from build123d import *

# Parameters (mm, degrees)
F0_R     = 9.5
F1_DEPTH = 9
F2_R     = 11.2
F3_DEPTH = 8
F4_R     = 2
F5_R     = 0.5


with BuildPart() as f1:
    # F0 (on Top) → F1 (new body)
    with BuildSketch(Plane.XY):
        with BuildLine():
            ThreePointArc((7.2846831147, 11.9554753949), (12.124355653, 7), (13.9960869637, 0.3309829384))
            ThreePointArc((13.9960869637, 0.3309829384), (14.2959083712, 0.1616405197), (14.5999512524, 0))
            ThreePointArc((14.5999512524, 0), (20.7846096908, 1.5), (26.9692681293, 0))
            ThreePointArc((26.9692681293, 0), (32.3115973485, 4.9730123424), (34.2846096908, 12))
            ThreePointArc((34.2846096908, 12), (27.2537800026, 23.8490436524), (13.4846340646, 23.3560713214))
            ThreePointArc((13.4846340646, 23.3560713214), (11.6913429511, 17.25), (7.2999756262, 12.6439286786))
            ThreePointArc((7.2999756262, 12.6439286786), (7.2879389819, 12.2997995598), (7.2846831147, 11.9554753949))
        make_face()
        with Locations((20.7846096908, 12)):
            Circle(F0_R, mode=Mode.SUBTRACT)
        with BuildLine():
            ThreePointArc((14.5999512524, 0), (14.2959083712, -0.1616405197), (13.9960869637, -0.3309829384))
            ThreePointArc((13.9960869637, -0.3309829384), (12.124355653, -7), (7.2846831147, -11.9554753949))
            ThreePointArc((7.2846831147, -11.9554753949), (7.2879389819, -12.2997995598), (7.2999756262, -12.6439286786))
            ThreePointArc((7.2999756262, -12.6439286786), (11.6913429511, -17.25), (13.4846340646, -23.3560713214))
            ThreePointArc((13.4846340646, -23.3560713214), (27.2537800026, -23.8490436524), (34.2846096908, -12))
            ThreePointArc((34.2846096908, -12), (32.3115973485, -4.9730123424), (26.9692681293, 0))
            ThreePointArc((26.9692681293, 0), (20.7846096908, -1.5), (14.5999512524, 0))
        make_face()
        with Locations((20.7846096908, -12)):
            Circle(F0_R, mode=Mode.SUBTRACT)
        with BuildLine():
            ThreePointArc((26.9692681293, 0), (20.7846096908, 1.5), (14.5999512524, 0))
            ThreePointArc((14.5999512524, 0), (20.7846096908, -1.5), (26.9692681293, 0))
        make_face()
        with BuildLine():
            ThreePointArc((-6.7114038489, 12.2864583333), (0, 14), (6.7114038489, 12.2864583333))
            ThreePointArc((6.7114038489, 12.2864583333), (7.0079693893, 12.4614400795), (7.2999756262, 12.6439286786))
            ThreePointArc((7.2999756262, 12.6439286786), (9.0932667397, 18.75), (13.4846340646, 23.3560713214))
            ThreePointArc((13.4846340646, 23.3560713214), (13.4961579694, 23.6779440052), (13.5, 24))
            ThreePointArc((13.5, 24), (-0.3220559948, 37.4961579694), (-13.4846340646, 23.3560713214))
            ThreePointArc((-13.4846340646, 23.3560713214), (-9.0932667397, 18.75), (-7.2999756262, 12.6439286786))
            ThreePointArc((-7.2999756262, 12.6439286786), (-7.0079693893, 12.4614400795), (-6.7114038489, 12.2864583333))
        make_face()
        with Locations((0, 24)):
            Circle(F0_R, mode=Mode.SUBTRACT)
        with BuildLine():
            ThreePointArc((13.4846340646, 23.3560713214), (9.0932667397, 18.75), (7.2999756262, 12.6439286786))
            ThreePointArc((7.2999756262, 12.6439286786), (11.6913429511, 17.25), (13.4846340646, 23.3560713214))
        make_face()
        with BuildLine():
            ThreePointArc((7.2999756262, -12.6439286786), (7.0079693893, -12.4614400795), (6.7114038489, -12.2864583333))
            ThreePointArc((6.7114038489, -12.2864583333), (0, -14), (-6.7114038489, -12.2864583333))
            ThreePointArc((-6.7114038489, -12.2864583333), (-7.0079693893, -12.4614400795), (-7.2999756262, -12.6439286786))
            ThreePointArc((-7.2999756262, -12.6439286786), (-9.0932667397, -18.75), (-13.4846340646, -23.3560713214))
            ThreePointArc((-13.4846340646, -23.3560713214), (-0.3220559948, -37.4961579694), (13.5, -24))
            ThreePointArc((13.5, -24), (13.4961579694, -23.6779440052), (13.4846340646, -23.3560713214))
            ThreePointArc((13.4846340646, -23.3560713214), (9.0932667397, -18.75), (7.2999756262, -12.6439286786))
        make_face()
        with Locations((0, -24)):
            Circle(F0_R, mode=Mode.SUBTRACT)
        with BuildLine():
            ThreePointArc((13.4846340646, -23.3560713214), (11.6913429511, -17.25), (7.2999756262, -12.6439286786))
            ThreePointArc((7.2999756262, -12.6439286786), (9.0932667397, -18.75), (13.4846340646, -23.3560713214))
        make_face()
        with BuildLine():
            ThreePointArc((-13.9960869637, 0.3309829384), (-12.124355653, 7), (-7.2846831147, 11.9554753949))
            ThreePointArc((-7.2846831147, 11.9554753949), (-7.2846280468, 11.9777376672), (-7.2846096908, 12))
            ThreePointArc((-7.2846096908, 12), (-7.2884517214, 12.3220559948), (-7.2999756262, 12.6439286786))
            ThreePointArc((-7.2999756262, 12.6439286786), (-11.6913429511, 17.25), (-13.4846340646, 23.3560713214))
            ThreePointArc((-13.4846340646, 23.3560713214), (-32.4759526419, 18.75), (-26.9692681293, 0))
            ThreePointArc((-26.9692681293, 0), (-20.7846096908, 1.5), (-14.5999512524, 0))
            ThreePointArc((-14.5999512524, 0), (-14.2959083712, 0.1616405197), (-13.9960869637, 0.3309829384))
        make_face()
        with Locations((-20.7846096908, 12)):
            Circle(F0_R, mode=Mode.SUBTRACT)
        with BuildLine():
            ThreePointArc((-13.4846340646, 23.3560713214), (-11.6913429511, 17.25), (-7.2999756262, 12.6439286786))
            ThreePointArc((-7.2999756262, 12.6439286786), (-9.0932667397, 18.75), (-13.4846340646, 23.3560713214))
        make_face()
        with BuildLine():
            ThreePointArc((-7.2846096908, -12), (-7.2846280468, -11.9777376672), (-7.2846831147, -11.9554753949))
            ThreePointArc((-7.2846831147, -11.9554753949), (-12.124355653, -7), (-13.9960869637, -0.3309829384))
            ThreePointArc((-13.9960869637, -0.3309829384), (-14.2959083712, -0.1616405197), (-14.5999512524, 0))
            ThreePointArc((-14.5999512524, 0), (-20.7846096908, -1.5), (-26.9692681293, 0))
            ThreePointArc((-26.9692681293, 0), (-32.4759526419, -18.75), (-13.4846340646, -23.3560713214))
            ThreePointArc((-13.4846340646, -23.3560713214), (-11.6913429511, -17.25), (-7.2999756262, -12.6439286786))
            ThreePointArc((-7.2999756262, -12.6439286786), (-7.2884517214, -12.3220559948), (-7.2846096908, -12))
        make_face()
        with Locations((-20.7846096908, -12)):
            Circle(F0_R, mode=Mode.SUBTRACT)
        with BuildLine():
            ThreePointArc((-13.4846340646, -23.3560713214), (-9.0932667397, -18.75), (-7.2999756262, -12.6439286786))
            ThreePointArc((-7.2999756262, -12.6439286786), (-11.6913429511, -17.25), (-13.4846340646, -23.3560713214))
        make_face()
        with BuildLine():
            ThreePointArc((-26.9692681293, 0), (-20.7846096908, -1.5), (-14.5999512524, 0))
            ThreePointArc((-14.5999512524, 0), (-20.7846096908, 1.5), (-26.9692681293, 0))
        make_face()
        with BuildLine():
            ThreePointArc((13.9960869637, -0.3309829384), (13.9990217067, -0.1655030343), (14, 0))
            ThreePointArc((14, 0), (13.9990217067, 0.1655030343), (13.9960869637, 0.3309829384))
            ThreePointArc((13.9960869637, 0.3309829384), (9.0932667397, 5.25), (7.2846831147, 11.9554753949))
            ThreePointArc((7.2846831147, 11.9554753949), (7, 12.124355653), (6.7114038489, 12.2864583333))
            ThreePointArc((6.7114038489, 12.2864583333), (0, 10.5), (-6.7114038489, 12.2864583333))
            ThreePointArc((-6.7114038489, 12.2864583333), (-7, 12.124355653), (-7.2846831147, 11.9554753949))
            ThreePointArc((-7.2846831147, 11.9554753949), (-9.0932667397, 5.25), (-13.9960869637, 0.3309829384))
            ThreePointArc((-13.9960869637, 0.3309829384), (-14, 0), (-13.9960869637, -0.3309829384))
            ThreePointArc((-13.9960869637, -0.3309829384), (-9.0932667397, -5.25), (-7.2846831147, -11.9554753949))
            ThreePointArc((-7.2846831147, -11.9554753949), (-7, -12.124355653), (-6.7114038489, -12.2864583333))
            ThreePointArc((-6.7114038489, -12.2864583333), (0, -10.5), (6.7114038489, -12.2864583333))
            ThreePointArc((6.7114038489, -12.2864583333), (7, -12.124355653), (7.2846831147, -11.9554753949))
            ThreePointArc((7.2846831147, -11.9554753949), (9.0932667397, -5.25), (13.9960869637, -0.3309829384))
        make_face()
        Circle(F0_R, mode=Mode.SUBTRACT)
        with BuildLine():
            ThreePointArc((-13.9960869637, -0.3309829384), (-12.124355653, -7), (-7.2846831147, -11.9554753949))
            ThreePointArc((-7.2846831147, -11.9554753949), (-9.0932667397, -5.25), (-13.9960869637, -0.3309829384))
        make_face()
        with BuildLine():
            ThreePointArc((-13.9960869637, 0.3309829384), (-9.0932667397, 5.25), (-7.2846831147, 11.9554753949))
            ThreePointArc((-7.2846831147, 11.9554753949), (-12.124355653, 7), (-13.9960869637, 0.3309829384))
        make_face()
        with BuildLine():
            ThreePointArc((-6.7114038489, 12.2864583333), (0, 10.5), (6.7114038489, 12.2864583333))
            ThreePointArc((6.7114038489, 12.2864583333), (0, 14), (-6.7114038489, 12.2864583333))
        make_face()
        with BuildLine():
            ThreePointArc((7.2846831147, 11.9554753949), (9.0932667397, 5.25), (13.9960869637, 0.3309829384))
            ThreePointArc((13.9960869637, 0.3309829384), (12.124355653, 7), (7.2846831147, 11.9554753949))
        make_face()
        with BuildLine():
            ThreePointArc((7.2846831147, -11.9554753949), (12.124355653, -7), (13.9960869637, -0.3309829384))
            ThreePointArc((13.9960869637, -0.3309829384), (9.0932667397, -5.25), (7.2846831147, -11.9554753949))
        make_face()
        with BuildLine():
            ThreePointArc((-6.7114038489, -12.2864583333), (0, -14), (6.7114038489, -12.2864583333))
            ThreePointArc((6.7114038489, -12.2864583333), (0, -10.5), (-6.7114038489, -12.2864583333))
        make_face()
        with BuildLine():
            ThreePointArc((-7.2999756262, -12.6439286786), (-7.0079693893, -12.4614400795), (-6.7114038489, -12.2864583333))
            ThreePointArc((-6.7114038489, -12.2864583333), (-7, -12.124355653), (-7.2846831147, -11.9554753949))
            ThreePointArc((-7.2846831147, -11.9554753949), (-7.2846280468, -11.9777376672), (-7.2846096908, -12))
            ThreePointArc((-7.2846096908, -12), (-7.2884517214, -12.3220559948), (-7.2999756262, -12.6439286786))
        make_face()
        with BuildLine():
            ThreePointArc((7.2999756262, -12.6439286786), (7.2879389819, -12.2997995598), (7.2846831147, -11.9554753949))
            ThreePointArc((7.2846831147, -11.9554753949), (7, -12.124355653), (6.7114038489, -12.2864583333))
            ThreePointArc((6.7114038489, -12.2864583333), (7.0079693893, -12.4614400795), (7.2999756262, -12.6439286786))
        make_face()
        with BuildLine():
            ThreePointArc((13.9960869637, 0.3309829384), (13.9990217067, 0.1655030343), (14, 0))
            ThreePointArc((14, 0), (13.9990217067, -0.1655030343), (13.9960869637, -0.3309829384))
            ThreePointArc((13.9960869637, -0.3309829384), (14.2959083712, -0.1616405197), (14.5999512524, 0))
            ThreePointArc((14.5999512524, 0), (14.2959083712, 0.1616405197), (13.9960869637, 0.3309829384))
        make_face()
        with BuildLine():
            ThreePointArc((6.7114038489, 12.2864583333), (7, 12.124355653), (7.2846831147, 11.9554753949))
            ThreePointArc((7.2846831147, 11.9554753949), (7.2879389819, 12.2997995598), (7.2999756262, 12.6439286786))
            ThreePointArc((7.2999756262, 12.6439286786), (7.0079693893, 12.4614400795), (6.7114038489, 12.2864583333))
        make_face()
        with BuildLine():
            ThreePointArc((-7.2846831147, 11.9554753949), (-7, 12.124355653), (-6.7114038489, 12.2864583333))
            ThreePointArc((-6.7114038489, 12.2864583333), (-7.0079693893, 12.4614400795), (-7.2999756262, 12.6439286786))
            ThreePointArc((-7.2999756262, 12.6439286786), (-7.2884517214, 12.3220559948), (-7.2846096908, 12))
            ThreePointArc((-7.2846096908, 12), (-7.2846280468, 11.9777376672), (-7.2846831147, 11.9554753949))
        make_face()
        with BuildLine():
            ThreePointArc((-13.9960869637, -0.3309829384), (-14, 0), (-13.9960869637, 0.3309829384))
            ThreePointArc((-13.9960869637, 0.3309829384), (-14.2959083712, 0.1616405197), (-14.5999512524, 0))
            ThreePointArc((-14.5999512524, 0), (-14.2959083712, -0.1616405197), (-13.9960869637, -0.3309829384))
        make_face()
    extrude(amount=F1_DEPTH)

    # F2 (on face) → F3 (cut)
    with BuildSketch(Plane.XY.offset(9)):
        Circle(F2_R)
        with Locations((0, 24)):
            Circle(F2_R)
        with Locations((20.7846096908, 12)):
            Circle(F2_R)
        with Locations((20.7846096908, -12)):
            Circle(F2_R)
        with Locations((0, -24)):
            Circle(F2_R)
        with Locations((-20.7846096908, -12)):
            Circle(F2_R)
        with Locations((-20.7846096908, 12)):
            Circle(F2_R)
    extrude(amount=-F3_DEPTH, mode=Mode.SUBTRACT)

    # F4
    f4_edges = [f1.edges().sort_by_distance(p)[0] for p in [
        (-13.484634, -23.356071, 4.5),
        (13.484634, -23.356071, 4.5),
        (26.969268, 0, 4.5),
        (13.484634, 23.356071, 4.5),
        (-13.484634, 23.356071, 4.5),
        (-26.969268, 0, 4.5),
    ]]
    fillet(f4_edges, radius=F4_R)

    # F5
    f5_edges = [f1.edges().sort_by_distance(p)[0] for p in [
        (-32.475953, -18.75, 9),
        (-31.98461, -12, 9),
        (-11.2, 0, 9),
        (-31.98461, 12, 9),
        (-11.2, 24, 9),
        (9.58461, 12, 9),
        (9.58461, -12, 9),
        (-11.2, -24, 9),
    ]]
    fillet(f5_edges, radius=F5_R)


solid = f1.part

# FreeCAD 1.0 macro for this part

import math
import FreeCAD as App
import Part
import Sketcher

V = App.Vector


def edges_at(feature, points):
    """Names of the edges that pass closest to the given points."""
    edges = feature.Shape.Edges
    near = lambda p: min(range(len(edges)), key=lambda i: edges[i].distToShape(Part.Vertex(*p))[0])
    return sorted({f"Edge{near(p) + 1}" for p in points})

doc = App.newDocument("Part")
body = doc.addObject("PartDesign::Body", "Body")

# Sketch on XY plane
sketch1 = body.newObject("Sketcher::SketchObject", "Sketch")
sketch1.AttachmentSupport = (doc.getObject("XY_Plane"), [""])
sketch1.MapMode = "FlatFace"
sketch1.addGeometry(Part.ArcOfCircle(Part.Circle(V(-20.78461, 12, 0), V(0, 0, 1), 13.5), math.radians(57.266044), math.radians(242.733956)), False)
sketch1.addGeometry(Part.ArcOfCircle(Part.Circle(V(-20.78461, -12, 0), V(0, 0, 1), 13.5), math.radians(117.266044), math.radians(302.733956)), False)
sketch1.addGeometry(Part.ArcOfCircle(Part.Circle(V(0, -24, 0), V(0, 0, 1), 13.5), math.radians(177.266044), math.radians(360)), False)
sketch1.addGeometry(Part.ArcOfCircle(Part.Circle(V(0, -24, 0), V(0, 0, 1), 13.5), math.radians(0), math.radians(2.733956)), False)
sketch1.addGeometry(Part.ArcOfCircle(Part.Circle(V(20.78461, -12, 0), V(0, 0, 1), 13.5), math.radians(-122.733956), math.radians(0)), False)
sketch1.addGeometry(Part.ArcOfCircle(Part.Circle(V(20.78461, -12, 0), V(0, 0, 1), 13.5), math.radians(0), math.radians(62.733956)), False)
sketch1.addGeometry(Part.ArcOfCircle(Part.Circle(V(20.78461, 12, 0), V(0, 0, 1), 13.5), math.radians(-62.733956), math.radians(0)), False)
sketch1.addGeometry(Part.ArcOfCircle(Part.Circle(V(20.78461, 12, 0), V(0, 0, 1), 13.5), math.radians(0), math.radians(122.733956)), False)
sketch1.addGeometry(Part.ArcOfCircle(Part.Circle(V(0, 24, 0), V(0, 0, 1), 13.5), math.radians(-2.733956), math.radians(0)), False)
sketch1.addGeometry(Part.ArcOfCircle(Part.Circle(V(0, 24, 0), V(0, 0, 1), 13.5), math.radians(0), math.radians(182.733956)), False)
sketch1.addGeometry(Part.Circle(V(-20.78461, -12, 0), V(0, 0, 1), 9.5), False)
sketch1.addGeometry(Part.Circle(V(0, -24, 0), V(0, 0, 1), 9.5), False)
sketch1.addGeometry(Part.Circle(V(20.78461, -12, 0), V(0, 0, 1), 9.5), False)
sketch1.addGeometry(Part.Circle(V(-20.78461, 12, 0), V(0, 0, 1), 9.5), False)
sketch1.addGeometry(Part.Circle(V(0, 0, 0), V(0, 0, 1), 9.5), False)
sketch1.addGeometry(Part.Circle(V(20.78461, 12, 0), V(0, 0, 1), 9.5), False)
sketch1.addGeometry(Part.Circle(V(0, 24, 0), V(0, 0, 1), 9.5), False)
sketch1.addConstraint(Sketcher.Constraint("Coincident", 0, 2, 1, 1))
sketch1.addConstraint(Sketcher.Constraint("Coincident", 1, 2, 2, 1))
sketch1.addConstraint(Sketcher.Constraint("Tangent", 2, 2, 3, 1))
sketch1.addConstraint(Sketcher.Constraint("Coincident", 3, 2, 4, 1))
sketch1.addConstraint(Sketcher.Constraint("Tangent", 4, 2, 5, 1))
sketch1.addConstraint(Sketcher.Constraint("Coincident", 5, 2, 6, 1))
sketch1.addConstraint(Sketcher.Constraint("Tangent", 6, 2, 7, 1))
sketch1.addConstraint(Sketcher.Constraint("Coincident", 7, 2, 8, 1))
sketch1.addConstraint(Sketcher.Constraint("Tangent", 8, 2, 9, 1))
sketch1.addConstraint(Sketcher.Constraint("Coincident", 9, 2, 0, 1))
sketch1.addConstraint(Sketcher.Constraint("Coincident", 14, 3, -1, 1))
sketch1.addConstraint(Sketcher.Constraint("Coincident", 10, 3, 1, 3))
sketch1.addConstraint(Sketcher.Constraint("Coincident", 11, 3, 2, 3))
sketch1.addConstraint(Sketcher.Constraint("Coincident", 12, 3, 4, 3))
sketch1.addConstraint(Sketcher.Constraint("Coincident", 13, 3, 0, 3))
sketch1.addConstraint(Sketcher.Constraint("Coincident", 15, 3, 6, 3))
sketch1.addConstraint(Sketcher.Constraint("Coincident", 16, 3, 8, 3))
sketch1.addConstraint(Sketcher.Constraint("Equal", 0, 1))
sketch1.addConstraint(Sketcher.Constraint("Equal", 1, 2))
sketch1.addConstraint(Sketcher.Constraint("Equal", 2, 3))
sketch1.addConstraint(Sketcher.Constraint("Equal", 3, 4))
sketch1.addConstraint(Sketcher.Constraint("Equal", 4, 5))
sketch1.addConstraint(Sketcher.Constraint("Equal", 5, 6))
sketch1.addConstraint(Sketcher.Constraint("Equal", 6, 7))
sketch1.addConstraint(Sketcher.Constraint("Equal", 7, 8))
sketch1.addConstraint(Sketcher.Constraint("Equal", 8, 9))
sketch1.addConstraint(Sketcher.Constraint("Equal", 10, 11))
sketch1.addConstraint(Sketcher.Constraint("Equal", 11, 12))
sketch1.addConstraint(Sketcher.Constraint("Equal", 12, 13))
sketch1.addConstraint(Sketcher.Constraint("Equal", 13, 14))
sketch1.addConstraint(Sketcher.Constraint("Equal", 14, 15))
sketch1.addConstraint(Sketcher.Constraint("Equal", 15, 16))
sketch1.addConstraint(Sketcher.Constraint("Symmetric", 0, 3, 4, 3, -1, 1))
sketch1.addConstraint(Sketcher.Constraint("Symmetric", 1, 3, 6, 3, -1, 1))
sketch1.addConstraint(Sketcher.Constraint("Symmetric", 2, 3, 8, 3, -1, 1))
sketch1.addConstraint(Sketcher.Constraint("Symmetric", 1, 3, 4, 3, -2))
sketch1.addConstraint(Sketcher.Constraint("Symmetric", 2, 2, 8, 2, -1))
sketch1.addConstraint(Sketcher.Constraint("Horizontal", 11, 3, 2, 2))
sketch1.addConstraint(Sketcher.Constraint("Horizontal", 12, 3, 4, 2))
sketch1.addConstraint(Sketcher.Constraint("Horizontal", 15, 3, 6, 2))
sketch1.addConstraint(Sketcher.Constraint("Diameter", 10, 19.0))
sketch1.addConstraint(Sketcher.Constraint("Radius", 0, 13.5))
sketch1.addConstraint(Sketcher.Constraint("DistanceY", -1, 1, 0, 3, 12.0))
sketch1.addConstraint(Sketcher.Constraint("DistanceY", 2, 3, -1, 1, 24.0))
sketch1.addConstraint(Sketcher.Constraint("DistanceX", 0, 3, -1, 1, 20.78461))
pad1 = body.newObject("PartDesign::Pad", "Pad")
pad1.Profile = sketch1
pad1.Length = 9

# Sketch on XY plane
sketch2 = body.newObject("Sketcher::SketchObject", "Sketch001")
sketch2.AttachmentSupport = (doc.getObject("XY_Plane"), [""])
sketch2.MapMode = "FlatFace"
sketch2.AttachmentOffset = App.Placement(V(0, 0, 9), App.Rotation())
sketch2.addGeometry(Part.Circle(V(0, 0, 0), V(0, 0, 1), 11.2), False)
sketch2.addGeometry(Part.Circle(V(0, 24, 0), V(0, 0, 1), 11.2), False)
sketch2.addGeometry(Part.Circle(V(20.78461, 12, 0), V(0, 0, 1), 11.2), False)
sketch2.addGeometry(Part.Circle(V(20.78461, -12, 0), V(0, 0, 1), 11.2), False)
sketch2.addGeometry(Part.Circle(V(0, -24, 0), V(0, 0, 1), 11.2), False)
sketch2.addGeometry(Part.Circle(V(-20.78461, -12, 0), V(0, 0, 1), 11.2), False)
sketch2.addGeometry(Part.Circle(V(-20.78461, 12, 0), V(0, 0, 1), 11.2), False)
sketch2.addConstraint(Sketcher.Constraint("Coincident", 0, 3, -1, 1))
sketch2.addConstraint(Sketcher.Constraint("Equal", 0, 1))
sketch2.addConstraint(Sketcher.Constraint("Equal", 1, 2))
sketch2.addConstraint(Sketcher.Constraint("Equal", 2, 3))
sketch2.addConstraint(Sketcher.Constraint("Equal", 3, 4))
sketch2.addConstraint(Sketcher.Constraint("Equal", 4, 5))
sketch2.addConstraint(Sketcher.Constraint("Equal", 5, 6))
sketch2.addConstraint(Sketcher.Constraint("Symmetric", 1, 3, 4, 3, -1, 1))
sketch2.addConstraint(Sketcher.Constraint("Symmetric", 2, 3, 5, 3, -1, 1))
sketch2.addConstraint(Sketcher.Constraint("Symmetric", 3, 3, 6, 3, -1, 1))
sketch2.addConstraint(Sketcher.Constraint("Symmetric", 3, 3, 5, 3, -2))
sketch2.addConstraint(Sketcher.Constraint("PointOnObject", 1, 3, -2))
sketch2.addConstraint(Sketcher.Constraint("Diameter", 0, 22.4))
sketch2.addConstraint(Sketcher.Constraint("DistanceY", -1, 1, 1, 3, 24.0))
sketch2.addConstraint(Sketcher.Constraint("DistanceY", -1, 1, 2, 3, 12.0))
sketch2.addConstraint(Sketcher.Constraint("DistanceX", -1, 1, 2, 3, 20.78461))
pocket1 = body.newObject("PartDesign::Pocket", "Pocket")
pocket1.Profile = sketch2
pocket1.Length = 8
doc.recompute()

fillet = body.newObject("PartDesign::Fillet", "Fillet")
fillet.Base = (pocket1, edges_at(pocket1, [
    (-13.485, -23.356, 4.5),
    (13.485, -23.356, 4.5),
    (26.969, 0, 4.5),
    (13.485, 23.356, 4.5),
    (-13.485, 23.356, 4.5),
    (-26.969, 0, 4.5),
]))
fillet.Radius = 2
doc.recompute()

fillet2 = body.newObject("PartDesign::Fillet", "Fillet001")
fillet2.Base = (fillet, edges_at(fillet, [
    (-32.476, -18.75, 9),
    (-31.985, -12, 9),
    (-11.2, 0, 9),
    (-31.985, 12, 9),
    (-11.2, 24, 9),
    (9.585, 12, 9),
    (9.585, -12, 9),
    (-11.2, -24, 9),
]))
fillet2.Radius = 0.5

doc.recompute()
